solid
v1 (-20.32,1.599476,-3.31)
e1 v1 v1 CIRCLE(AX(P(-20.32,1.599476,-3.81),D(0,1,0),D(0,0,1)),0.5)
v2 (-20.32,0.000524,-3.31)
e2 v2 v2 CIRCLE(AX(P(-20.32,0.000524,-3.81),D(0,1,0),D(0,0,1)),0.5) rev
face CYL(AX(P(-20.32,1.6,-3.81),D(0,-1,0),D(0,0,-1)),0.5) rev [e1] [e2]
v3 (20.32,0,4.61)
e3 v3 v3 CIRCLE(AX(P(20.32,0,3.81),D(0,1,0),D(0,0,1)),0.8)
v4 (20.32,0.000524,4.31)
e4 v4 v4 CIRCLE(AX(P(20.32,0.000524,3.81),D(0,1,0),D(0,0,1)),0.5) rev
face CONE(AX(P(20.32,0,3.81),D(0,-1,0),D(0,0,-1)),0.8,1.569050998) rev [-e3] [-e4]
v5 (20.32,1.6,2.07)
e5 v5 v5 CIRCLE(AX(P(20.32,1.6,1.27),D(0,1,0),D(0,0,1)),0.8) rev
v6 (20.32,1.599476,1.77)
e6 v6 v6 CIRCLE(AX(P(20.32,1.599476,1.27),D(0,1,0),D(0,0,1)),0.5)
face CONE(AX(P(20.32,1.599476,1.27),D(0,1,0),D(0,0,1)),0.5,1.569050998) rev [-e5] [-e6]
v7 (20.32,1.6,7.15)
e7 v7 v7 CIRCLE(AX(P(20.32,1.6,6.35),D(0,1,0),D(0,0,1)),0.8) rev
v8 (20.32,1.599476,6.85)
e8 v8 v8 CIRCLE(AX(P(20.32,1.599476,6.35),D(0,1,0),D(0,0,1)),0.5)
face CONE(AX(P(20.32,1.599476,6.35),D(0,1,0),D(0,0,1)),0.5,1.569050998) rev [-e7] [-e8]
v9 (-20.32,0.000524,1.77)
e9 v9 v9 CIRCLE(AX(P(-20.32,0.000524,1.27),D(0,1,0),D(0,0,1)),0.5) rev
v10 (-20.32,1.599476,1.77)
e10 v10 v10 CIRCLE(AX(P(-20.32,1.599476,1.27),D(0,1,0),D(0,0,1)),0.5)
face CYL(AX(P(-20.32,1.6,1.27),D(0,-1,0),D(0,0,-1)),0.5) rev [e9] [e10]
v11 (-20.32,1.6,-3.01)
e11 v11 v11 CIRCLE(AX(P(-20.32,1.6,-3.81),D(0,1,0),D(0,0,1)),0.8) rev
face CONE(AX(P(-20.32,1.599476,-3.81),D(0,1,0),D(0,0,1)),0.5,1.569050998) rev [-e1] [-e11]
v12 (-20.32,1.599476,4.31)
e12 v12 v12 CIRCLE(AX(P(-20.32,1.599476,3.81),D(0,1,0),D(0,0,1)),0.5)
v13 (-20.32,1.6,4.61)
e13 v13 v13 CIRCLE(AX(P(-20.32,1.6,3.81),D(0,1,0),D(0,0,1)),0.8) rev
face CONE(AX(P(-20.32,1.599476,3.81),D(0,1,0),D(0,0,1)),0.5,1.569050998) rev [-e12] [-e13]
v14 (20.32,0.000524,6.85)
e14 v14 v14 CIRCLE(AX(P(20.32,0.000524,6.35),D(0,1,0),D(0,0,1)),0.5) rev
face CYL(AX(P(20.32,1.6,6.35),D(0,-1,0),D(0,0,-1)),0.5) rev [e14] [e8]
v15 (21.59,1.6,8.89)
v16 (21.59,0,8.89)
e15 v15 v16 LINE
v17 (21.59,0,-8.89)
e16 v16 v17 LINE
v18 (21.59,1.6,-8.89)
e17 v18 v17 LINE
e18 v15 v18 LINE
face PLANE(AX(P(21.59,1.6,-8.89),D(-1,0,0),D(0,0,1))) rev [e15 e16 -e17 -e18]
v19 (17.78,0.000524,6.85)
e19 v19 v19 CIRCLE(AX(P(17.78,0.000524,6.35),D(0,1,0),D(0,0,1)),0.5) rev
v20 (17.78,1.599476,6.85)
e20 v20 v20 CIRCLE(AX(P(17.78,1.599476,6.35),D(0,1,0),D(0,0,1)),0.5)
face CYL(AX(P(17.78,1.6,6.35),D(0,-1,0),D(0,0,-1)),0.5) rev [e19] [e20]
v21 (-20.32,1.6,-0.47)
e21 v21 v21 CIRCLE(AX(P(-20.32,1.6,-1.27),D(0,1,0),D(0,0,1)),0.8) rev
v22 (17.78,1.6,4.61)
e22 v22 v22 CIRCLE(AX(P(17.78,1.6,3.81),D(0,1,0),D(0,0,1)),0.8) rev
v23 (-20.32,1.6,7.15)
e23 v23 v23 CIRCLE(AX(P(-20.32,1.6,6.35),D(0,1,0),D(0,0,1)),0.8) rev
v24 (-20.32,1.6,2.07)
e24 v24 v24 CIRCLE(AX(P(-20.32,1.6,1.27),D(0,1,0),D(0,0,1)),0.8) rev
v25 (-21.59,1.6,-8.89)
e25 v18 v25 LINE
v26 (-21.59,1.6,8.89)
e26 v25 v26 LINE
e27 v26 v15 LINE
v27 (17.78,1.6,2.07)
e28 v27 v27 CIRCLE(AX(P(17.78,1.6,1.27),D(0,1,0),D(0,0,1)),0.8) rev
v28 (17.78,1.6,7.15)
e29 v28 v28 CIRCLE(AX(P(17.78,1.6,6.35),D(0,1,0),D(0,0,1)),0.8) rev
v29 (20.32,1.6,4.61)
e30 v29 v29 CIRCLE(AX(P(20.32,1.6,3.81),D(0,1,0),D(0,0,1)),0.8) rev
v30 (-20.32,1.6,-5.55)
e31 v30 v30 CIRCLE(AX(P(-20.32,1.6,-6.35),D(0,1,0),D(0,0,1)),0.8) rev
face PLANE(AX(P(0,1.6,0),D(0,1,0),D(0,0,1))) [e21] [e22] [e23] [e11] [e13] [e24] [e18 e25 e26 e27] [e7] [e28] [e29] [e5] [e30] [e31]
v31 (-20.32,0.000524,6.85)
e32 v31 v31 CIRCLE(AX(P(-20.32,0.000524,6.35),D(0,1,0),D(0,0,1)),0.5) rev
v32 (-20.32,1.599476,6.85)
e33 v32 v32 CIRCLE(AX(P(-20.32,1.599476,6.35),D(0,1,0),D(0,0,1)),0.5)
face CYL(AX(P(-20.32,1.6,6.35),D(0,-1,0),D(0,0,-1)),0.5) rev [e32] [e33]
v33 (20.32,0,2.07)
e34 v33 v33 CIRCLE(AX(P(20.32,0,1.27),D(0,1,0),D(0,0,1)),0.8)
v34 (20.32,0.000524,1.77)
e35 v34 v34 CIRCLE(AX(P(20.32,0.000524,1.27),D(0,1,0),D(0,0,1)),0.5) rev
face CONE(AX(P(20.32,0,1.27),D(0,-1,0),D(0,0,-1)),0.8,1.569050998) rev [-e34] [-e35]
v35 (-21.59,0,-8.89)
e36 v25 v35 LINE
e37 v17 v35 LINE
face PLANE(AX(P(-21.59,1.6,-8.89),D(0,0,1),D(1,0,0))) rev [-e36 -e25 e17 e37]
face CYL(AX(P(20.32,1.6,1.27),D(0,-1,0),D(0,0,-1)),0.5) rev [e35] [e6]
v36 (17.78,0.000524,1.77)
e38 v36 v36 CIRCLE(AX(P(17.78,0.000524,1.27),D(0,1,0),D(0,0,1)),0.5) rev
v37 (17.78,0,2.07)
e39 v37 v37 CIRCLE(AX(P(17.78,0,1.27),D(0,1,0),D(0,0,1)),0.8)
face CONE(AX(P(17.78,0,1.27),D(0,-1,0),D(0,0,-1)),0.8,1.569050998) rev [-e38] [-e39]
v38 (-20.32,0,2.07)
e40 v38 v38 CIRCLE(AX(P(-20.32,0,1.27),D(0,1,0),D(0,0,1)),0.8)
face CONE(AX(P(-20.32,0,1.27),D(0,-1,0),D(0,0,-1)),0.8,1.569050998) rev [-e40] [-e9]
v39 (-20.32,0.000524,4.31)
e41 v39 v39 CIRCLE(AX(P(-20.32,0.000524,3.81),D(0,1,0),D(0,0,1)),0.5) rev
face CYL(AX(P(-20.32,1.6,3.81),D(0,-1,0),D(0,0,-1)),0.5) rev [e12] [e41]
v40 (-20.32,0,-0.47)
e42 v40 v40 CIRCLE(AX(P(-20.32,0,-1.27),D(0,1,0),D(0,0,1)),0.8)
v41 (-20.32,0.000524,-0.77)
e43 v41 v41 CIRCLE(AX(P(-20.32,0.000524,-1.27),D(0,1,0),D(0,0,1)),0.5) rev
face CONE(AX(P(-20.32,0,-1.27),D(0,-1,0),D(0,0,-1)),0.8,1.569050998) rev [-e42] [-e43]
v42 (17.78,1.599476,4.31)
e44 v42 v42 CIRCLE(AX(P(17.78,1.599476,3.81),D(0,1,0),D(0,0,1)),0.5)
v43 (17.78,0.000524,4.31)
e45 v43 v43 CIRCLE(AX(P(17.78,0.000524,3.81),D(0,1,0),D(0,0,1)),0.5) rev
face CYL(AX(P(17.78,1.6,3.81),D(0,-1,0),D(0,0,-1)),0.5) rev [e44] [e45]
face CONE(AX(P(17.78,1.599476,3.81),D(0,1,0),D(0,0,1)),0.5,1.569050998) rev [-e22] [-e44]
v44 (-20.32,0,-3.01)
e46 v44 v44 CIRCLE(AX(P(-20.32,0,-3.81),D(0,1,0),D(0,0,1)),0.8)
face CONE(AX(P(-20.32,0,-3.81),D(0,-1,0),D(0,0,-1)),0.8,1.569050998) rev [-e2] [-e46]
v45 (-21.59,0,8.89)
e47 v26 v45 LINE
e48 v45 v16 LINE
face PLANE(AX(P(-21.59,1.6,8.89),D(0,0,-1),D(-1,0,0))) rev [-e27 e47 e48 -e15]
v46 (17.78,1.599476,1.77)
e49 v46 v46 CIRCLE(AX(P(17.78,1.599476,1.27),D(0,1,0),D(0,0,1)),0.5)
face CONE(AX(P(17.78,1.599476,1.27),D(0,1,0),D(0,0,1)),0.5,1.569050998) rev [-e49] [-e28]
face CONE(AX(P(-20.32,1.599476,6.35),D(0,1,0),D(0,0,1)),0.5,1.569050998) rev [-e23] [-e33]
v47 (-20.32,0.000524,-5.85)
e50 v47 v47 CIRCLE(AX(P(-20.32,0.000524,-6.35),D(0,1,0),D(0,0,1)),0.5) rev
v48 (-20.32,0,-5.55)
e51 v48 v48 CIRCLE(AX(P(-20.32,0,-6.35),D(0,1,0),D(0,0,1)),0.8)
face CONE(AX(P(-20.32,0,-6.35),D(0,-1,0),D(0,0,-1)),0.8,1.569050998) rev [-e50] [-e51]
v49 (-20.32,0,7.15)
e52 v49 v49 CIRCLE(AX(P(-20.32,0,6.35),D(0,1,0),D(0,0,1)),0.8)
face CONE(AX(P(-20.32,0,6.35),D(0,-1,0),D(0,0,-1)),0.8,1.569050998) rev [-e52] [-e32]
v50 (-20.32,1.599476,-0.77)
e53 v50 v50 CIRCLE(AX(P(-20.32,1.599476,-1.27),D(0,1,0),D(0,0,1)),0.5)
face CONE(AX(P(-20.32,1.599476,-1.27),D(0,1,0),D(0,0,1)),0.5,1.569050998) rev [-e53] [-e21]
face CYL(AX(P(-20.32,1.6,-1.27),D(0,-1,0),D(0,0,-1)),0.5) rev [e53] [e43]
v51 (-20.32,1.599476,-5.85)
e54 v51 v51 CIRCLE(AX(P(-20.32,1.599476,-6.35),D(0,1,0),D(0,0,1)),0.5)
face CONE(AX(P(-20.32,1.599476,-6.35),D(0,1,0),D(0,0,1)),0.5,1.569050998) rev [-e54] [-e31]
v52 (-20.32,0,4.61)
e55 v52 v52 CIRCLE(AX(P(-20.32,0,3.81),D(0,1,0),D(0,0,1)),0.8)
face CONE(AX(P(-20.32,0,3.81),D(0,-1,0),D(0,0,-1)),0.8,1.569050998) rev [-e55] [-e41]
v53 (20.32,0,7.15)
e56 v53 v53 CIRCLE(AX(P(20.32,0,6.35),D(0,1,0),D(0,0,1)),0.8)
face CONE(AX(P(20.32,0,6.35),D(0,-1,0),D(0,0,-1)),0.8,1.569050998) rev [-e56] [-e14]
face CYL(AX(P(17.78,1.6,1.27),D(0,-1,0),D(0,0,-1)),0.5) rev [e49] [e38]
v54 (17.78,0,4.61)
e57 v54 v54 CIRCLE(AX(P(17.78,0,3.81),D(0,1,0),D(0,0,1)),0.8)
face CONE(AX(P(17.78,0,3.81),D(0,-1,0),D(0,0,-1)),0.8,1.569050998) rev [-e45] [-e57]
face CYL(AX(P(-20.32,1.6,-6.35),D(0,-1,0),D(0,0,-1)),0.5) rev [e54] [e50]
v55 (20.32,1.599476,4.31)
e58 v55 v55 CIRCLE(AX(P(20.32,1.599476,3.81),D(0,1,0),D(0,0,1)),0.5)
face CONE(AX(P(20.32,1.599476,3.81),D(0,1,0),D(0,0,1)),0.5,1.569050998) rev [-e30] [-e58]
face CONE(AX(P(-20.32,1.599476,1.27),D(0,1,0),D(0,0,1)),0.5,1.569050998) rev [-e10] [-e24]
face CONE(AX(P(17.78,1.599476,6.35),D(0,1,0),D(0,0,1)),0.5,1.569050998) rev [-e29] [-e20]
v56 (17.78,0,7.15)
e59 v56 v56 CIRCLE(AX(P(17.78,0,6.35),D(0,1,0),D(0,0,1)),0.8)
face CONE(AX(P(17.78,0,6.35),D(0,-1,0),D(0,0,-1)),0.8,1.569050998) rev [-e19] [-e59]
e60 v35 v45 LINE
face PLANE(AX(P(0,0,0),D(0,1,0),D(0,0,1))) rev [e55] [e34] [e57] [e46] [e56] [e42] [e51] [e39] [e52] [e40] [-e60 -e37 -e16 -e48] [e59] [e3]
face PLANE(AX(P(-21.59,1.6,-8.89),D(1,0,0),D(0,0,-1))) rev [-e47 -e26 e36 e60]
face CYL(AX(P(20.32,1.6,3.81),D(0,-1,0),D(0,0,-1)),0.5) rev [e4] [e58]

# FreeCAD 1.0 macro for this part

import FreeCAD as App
import Part
import Sketcher
from FreeCAD import Vector
Q = App.Units.Quantity


def edges_at(feature, points):
    """Names of the edges that pass closest to the given points."""
    edges = feature.Shape.Edges
    near = lambda p: min(range(len(edges)), key=lambda i: edges[i].distToShape(Part.Vertex(*p))[0])
    return sorted({f"Edge{near(p) + 1}" for p in points})


def add_polygon(sketch, points):
    """Adds a closed chain of lines whose ends are joined by coincident constraints."""
    first, n = sketch.GeometryCount, len(points)
    for a, b in zip(points, points[1:] + points[:1]):
        sketch.addGeometry(Part.LineSegment(App.Vector(*a, 0), App.Vector(*b, 0)), False)
    for i in range(n):
        sketch.addConstraint(Sketcher.Constraint("Coincident", first + i, 2, first + (i + 1) % n, 1))

doc = App.newDocument("Part")
body = doc.addObject("PartDesign::Body", "Body")

# Sketch on XZ plane
sketch1 = doc.addObject("Sketcher::SketchObject", "Sketch")
body.addObject(sketch1)
sketch1.AttachmentSupport = (doc.XZ_Plane, [""])
sketch1.MapMode = "FlatFace"
add_polygon(sketch1, [(-21.59, -8.89), (-21.59, 8.89), (21.59, 8.89), (21.59, -8.89)])  # lines 0-3
sketch1.addGeometry(Part.Circle(Vector(-20.32, 6.35, 0), Vector(0, 0, 1), 0.5), False)  # 4
sketch1.addGeometry(Part.Circle(Vector(-20.32, 3.81, 0), Vector(0, 0, 1), 0.5), False)  # 5
sketch1.addGeometry(Part.Circle(Vector(-20.32, 1.27, 0), Vector(0, 0, 1), 0.5), False)  # 6
sketch1.addGeometry(Part.Circle(Vector(17.78, 6.35, 0), Vector(0, 0, 1), 0.5), False)  # 7
sketch1.addGeometry(Part.Circle(Vector(20.32, 6.35, 0), Vector(0, 0, 1), 0.5), False)  # 8
sketch1.addGeometry(Part.Circle(Vector(17.78, 3.81, 0), Vector(0, 0, 1), 0.5), False)  # 9
sketch1.addGeometry(Part.Circle(Vector(20.32, 3.81, 0), Vector(0, 0, 1), 0.5), False)  # 10
sketch1.addGeometry(Part.Circle(Vector(17.78, 1.27, 0), Vector(0, 0, 1), 0.5), False)  # 11
sketch1.addGeometry(Part.Circle(Vector(20.32, 1.27, 0), Vector(0, 0, 1), 0.5), False)  # 12
sketch1.addGeometry(Part.Circle(Vector(-20.32, -1.27, 0), Vector(0, 0, 1), 0.5), False)  # 13
sketch1.addGeometry(Part.Circle(Vector(-20.32, -3.81, 0), Vector(0, 0, 1), 0.5), False)  # 14
sketch1.addGeometry(Part.Circle(Vector(-20.32, -6.35, 0), Vector(0, 0, 1), 0.5), False)  # 15
sketch1.addConstraint([
    Sketcher.Constraint("Vertical", 0),
    Sketcher.Constraint("Horizontal", 1),
    Sketcher.Constraint("Vertical", 2),
    Sketcher.Constraint("Horizontal", 3),
    Sketcher.Constraint("Equal", 4, 5),
    Sketcher.Constraint("Equal", 5, 6),
    Sketcher.Constraint("Equal", 6, 7),
    Sketcher.Constraint("Equal", 7, 8),
    Sketcher.Constraint("Equal", 8, 9),
    Sketcher.Constraint("Equal", 9, 10),
    Sketcher.Constraint("Equal", 10, 11),
    Sketcher.Constraint("Equal", 11, 12),
    Sketcher.Constraint("Equal", 12, 13),
    Sketcher.Constraint("Equal", 13, 14),
    Sketcher.Constraint("Equal", 14, 15),
    Sketcher.Constraint("Symmetric", 12, 3, 13, 3, -1, 1),
    Sketcher.Constraint("Symmetric", 10, 3, 14, 3, -1, 1),
    Sketcher.Constraint("Symmetric", 8, 3, 15, 3, -1, 1),
    Sketcher.Constraint("Symmetric", 0, 2, 2, 2, -1, 1),
    Sketcher.Constraint("Symmetric", 4, 3, 8, 3, -2),
    Sketcher.Constraint("Symmetric", 5, 3, 10, 3, -2),
    Sketcher.Constraint("Symmetric", 6, 3, 12, 3, -2),
    Sketcher.Constraint("Horizontal", 4, 3, 7, 3),
    Sketcher.Constraint("Horizontal", 5, 3, 9, 3),
    Sketcher.Constraint("Horizontal", 6, 3, 11, 3),
    Sketcher.Constraint("Vertical", 4, 3, 5, 3),
    Sketcher.Constraint("Vertical", 5, 3, 6, 3),
    Sketcher.Constraint("Vertical", 7, 3, 9, 3),
    Sketcher.Constraint("Vertical", 9, 3, 11, 3),
    Sketcher.Constraint("Diameter", 4, Q("1 mm")),
    Sketcher.Constraint("DistanceX", 1, 1, 1, 2, Q("43.18 mm")),
    Sketcher.Constraint("DistanceY", 0, 1, 0, 2, Q("17.78 mm")),
    Sketcher.Constraint("DistanceX", 4, 3, 7, 3, Q("38.1 mm")),
    Sketcher.Constraint("DistanceY", 15, 3, 4, 3, Q("12.7 mm")),
    Sketcher.Constraint("DistanceY", 14, 3, 0, 2, Q("12.7 mm")),
    Sketcher.Constraint("DistanceX", 4, 3, -1, 1, Q("20.32 mm")),
    Sketcher.Constraint("DistanceY", -1, 1, 6, 3, Q("1.27 mm")),
])
pad1 = doc.addObject("PartDesign::Pad", "Pad")
body.addObject(pad1)
pad1.Profile = sketch1
pad1.Length = 1.6
pad1.Reversed = True
doc.recompute()

chamfer = doc.addObject("PartDesign::Chamfer", "Chamfer")
body.addObject(chamfer)
chamfer.Base = (pad1, edges_at(pad1, [
    (20.32, 1.6, 5.85),
    (-20.32, 1.6, -4.31),
    (-20.32, 1.6, -1.77),
    (-20.32, 1.6, 0.77),
    (-20.32, 1.6, 3.31),
    (-20.32, 1.6, 5.85),
    (-20.32, 1.6, -6.85),
    (17.78, 1.6, 5.85),
    (17.78, 1.6, 3.31),
    (17.78, 1.6, 0.77),
    (20.32, 1.6, 3.31),
    (20.32, 1.6, 0.77),
]))
chamfer.ChamferType = "Two distances"
chamfer.Size = 0.3
chamfer.Size2 = 0.000524
doc.recompute()

chamfer2 = doc.addObject("PartDesign::Chamfer", "Chamfer001")
body.addObject(chamfer2)
chamfer2.Base = (chamfer, edges_at(chamfer, [
    (20.32, 0, 5.85),
    (-20.32, 0, -4.31),
    (-20.32, 0, -1.77),
    (-20.32, 0, 0.77),
    (-20.32, 0, 3.31),
    (-20.32, 0, 5.85),
    (-20.32, 0, -6.85),
    (17.78, 0, 5.85),
    (17.78, 0, 3.31),
    (17.78, 0, 0.77),
    (20.32, 0, 3.31),
    (20.32, 0, 0.77),
]))
chamfer2.ChamferType = "Two distances"
chamfer2.Size = 0.3
chamfer2.Size2 = 0.000524

doc.recompute()
